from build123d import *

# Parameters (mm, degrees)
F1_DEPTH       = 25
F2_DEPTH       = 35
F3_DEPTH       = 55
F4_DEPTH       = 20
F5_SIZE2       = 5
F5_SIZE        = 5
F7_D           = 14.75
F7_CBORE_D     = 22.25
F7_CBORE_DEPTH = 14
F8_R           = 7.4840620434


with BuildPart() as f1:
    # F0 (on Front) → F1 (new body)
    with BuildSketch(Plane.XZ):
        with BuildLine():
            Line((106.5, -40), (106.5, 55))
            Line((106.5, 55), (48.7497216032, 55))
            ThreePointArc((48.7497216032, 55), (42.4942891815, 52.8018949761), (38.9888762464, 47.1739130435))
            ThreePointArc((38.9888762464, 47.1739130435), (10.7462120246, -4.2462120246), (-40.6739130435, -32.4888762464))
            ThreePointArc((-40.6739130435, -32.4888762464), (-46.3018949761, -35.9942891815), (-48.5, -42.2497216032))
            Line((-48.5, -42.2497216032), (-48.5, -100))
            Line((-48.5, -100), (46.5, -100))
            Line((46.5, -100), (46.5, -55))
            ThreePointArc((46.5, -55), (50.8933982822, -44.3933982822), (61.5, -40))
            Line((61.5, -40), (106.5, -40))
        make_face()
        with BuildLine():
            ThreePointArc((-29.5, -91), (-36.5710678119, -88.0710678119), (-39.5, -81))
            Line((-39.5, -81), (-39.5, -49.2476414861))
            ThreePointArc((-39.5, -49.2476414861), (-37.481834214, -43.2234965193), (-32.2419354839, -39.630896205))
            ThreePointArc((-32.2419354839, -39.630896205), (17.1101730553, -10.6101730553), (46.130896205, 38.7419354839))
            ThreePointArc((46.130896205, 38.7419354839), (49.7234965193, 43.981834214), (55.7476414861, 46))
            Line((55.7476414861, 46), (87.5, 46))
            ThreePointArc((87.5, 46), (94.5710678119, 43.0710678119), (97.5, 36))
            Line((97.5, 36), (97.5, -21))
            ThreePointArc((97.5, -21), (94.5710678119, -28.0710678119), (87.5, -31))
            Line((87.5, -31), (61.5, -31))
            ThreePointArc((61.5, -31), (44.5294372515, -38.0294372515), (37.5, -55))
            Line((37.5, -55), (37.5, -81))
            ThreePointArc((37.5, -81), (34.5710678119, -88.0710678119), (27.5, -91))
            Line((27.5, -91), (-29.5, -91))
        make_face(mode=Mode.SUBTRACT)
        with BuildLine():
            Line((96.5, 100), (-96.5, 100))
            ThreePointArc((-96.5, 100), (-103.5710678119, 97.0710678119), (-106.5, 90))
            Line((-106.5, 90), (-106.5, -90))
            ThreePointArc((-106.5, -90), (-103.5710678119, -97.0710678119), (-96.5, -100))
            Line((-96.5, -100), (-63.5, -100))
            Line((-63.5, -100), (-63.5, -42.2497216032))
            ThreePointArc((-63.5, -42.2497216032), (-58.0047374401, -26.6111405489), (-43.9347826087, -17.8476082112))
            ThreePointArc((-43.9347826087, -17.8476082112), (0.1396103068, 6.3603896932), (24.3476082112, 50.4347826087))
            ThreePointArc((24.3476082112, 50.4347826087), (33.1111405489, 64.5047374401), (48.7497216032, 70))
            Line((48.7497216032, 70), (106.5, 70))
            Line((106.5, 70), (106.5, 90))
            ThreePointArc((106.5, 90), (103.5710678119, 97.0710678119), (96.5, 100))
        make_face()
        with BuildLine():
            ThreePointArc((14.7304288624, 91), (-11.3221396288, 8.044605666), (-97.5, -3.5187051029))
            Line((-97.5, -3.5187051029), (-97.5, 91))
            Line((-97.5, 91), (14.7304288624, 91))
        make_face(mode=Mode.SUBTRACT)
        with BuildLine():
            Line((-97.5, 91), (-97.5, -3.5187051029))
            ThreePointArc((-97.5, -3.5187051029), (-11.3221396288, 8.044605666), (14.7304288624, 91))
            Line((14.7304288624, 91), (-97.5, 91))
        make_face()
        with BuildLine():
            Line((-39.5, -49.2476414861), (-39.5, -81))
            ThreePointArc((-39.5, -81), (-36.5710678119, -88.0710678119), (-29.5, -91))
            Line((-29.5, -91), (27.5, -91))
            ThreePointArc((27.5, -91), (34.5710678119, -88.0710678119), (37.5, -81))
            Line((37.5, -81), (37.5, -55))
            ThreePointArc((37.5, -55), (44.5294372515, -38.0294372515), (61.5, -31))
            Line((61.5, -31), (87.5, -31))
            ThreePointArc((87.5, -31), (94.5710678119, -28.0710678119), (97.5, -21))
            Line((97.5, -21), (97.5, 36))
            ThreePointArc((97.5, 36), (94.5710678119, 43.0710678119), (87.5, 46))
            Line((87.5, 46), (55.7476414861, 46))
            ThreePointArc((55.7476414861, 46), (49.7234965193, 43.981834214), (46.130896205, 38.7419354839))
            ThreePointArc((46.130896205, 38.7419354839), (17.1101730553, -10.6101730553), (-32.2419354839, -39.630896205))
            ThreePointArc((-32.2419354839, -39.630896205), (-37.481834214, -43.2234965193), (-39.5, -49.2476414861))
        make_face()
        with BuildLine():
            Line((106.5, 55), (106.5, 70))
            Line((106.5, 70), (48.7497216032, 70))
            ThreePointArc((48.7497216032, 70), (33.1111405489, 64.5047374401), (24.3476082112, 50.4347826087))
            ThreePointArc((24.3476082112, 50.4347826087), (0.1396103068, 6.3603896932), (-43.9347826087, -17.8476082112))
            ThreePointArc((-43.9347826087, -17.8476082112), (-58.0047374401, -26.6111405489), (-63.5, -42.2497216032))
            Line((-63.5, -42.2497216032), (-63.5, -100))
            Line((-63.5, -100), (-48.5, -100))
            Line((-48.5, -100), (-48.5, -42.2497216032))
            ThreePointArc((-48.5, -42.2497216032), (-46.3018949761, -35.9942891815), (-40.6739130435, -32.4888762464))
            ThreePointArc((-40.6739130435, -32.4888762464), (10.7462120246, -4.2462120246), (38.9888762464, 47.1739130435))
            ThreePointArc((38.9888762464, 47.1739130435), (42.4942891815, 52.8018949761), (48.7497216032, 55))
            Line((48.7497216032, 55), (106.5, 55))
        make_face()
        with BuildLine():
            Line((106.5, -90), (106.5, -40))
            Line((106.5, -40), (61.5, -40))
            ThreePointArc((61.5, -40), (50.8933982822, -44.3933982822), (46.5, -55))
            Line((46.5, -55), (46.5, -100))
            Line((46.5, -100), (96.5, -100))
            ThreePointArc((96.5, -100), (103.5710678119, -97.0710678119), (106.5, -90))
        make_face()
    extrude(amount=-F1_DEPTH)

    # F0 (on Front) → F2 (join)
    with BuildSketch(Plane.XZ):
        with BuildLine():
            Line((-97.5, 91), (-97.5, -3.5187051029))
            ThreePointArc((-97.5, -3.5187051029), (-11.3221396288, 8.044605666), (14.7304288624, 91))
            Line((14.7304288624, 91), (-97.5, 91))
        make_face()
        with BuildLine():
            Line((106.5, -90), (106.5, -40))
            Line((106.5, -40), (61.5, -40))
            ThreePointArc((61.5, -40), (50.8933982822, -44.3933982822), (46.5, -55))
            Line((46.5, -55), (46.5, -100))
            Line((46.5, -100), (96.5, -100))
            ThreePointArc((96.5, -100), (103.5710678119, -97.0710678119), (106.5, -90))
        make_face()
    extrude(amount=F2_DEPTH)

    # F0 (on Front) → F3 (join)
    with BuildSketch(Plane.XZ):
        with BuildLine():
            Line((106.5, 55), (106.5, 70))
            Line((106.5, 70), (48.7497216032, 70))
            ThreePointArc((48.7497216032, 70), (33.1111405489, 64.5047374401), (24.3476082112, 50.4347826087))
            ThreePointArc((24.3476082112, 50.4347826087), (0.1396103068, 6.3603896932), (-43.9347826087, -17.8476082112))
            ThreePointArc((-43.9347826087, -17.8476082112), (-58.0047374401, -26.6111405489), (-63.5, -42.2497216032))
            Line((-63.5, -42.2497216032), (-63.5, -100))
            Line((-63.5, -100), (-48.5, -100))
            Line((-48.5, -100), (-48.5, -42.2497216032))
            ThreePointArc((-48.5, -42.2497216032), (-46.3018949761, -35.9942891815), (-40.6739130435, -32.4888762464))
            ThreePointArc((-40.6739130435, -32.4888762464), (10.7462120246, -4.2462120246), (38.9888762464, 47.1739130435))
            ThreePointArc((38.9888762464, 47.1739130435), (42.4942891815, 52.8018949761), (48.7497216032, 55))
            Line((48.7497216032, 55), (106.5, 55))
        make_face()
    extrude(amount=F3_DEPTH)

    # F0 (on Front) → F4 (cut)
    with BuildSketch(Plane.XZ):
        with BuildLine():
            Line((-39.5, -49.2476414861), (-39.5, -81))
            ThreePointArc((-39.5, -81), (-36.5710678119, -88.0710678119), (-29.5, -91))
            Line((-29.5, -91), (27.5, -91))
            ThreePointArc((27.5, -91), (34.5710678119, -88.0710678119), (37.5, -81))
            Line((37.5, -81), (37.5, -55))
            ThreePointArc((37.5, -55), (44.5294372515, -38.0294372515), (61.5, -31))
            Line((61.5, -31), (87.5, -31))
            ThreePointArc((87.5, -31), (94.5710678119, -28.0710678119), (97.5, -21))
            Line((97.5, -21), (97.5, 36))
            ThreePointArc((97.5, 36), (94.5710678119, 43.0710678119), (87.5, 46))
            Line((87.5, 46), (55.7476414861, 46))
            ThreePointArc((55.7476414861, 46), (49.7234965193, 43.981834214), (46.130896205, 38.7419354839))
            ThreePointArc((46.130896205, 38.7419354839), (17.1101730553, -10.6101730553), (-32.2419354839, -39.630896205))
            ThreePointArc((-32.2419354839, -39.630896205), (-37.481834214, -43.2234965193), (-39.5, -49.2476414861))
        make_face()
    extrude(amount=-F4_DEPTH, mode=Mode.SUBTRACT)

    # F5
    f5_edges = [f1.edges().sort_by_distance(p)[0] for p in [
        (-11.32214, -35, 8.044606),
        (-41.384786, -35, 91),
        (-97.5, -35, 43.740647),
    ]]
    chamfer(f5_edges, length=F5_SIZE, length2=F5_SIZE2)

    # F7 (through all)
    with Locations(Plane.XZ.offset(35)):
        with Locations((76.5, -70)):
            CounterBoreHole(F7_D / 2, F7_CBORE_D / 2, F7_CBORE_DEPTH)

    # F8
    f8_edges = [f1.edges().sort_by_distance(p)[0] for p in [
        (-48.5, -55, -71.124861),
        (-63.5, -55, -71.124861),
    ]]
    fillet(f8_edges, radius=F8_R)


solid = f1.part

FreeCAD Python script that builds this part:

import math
import FreeCAD as App
import Part
import Sketcher

V = App.Vector


def edges_at(feature, points):
    """Names of the edges that pass closest to the given points."""
    edges = feature.Shape.Edges
    near = lambda p: min(range(len(edges)), key=lambda i: edges[i].distToShape(Part.Vertex(*p))[0])
    return sorted({f"Edge{near(p) + 1}" for p in points})

doc = App.newDocument("Part")
body = doc.addObject("PartDesign::Body", "Body")

# Sketch on XZ plane
sketch1 = body.newObject("Sketcher::SketchObject", "Sketch")
sketch1.AttachmentSupport = (doc.getObject("XZ_Plane"), [""])
sketch1.MapMode = "FlatFace"
sketch1.addGeometry(Part.ArcOfCircle(Part.Circle(V(96, 90, 0), V(0, 0, 1), 10), math.radians(0), math.radians(90)), False)
sketch1.addGeometry(Part.LineSegment(V(96, 100, 0), V(-96, 100, 0)), False)
sketch1.addGeometry(Part.ArcOfCircle(Part.Circle(V(-96, 90, 0), V(0, 0, 1), 10), math.radians(90), math.radians(180)), False)
sketch1.addGeometry(Part.LineSegment(V(-106, 90, 0), V(-106, -90, 0)), False)
sketch1.addGeometry(Part.ArcOfCircle(Part.Circle(V(-96, -90, 0), V(0, 0, 1), 10), math.radians(180), math.radians(270)), False)
sketch1.addGeometry(Part.LineSegment(V(-96, -100, 0), V(96, -100, 0)), False)
sketch1.addGeometry(Part.ArcOfCircle(Part.Circle(V(96, -90, 0), V(0, 0, 1), 10), math.radians(-90), math.radians(0)), False)
sketch1.addGeometry(Part.LineSegment(V(106, -90, 0), V(106, 90, 0)), False)
sketch1.addConstraint(Sketcher.Constraint("Tangent", 0, 2, 1, 1))
sketch1.addConstraint(Sketcher.Constraint("Tangent", 1, 2, 2, 1))
sketch1.addConstraint(Sketcher.Constraint("Tangent", 2, 2, 3, 1))
sketch1.addConstraint(Sketcher.Constraint("Tangent", 3, 2, 4, 1))
sketch1.addConstraint(Sketcher.Constraint("Tangent", 4, 2, 5, 1))
sketch1.addConstraint(Sketcher.Constraint("Tangent", 5, 2, 6, 1))
sketch1.addConstraint(Sketcher.Constraint("Tangent", 6, 2, 7, 1))
sketch1.addConstraint(Sketcher.Constraint("Tangent", 7, 2, 0, 1))
sketch1.addConstraint(Sketcher.Constraint("Horizontal", 1))
sketch1.addConstraint(Sketcher.Constraint("Vertical", 3))
sketch1.addConstraint(Sketcher.Constraint("Horizontal", 5))
sketch1.addConstraint(Sketcher.Constraint("Vertical", 7))
sketch1.addConstraint(Sketcher.Constraint("Equal", 0, 2))
sketch1.addConstraint(Sketcher.Constraint("Equal", 2, 4))
sketch1.addConstraint(Sketcher.Constraint("Equal", 4, 6))
sketch1.addConstraint(Sketcher.Constraint("Symmetric", 0, 3, 4, 3, -1, 1))
sketch1.addConstraint(Sketcher.Constraint("Radius", 0, 10.0))
sketch1.addConstraint(Sketcher.Constraint("DistanceX", 1, 2, 1, 1, 193.0))
sketch1.addConstraint(Sketcher.Constraint("DistanceY", 3, 2, 3, 1, 180.0))
pad1 = body.newObject("PartDesign::Pad", "Pad")
pad1.Profile = sketch1
pad1.Length = 25
pad1.Reversed = True

# Sketch on XZ plane
sketch2 = body.newObject("Sketcher::SketchObject", "Sketch001")
sketch2.AttachmentSupport = (doc.getObject("XZ_Plane"), [""])
sketch2.MapMode = "FlatFace"
sketch2.addGeometry(Part.LineSegment(V(-98, 91, 0), V(-98, -4, 0)), False)
sketch2.addGeometry(Part.ArcOfCircle(Part.Circle(V(-64, 70, 0), V(0, 0, 1), 81), math.radians(-115), math.radians(15)), False)
sketch2.addGeometry(Part.LineSegment(V(15, 91, 0), V(-98, 91, 0)), False)
sketch2.addGeometry(Part.LineSegment(V(106, -90, 0), V(106, -40, 0)), False)
sketch2.addGeometry(Part.LineSegment(V(106, -40, 0), V(62, -40, 0)), False)
sketch2.addGeometry(Part.ArcOfCircle(Part.Circle(V(62, -55, 0), V(0, 0, 1), 15), math.radians(90), math.radians(180)), False)
sketch2.addGeometry(Part.LineSegment(V(46, -55, 0), V(46, -100, 0)), False)
sketch2.addGeometry(Part.LineSegment(V(46, -100, 0), V(96, -100, 0)), False)
sketch2.addGeometry(Part.ArcOfCircle(Part.Circle(V(96, -90, 0), V(0, 0, 1), 10), math.radians(-90), math.radians(0)), False)
sketch2.addConstraint(Sketcher.Constraint("Coincident", 0, 2, 1, 1))
sketch2.addConstraint(Sketcher.Constraint("Coincident", 1, 2, 2, 1))
sketch2.addConstraint(Sketcher.Constraint("Coincident", 2, 2, 0, 1))
sketch2.addConstraint(Sketcher.Constraint("Coincident", 3, 2, 4, 1))
sketch2.addConstraint(Sketcher.Constraint("Tangent", 4, 2, 5, 1))
sketch2.addConstraint(Sketcher.Constraint("Tangent", 5, 2, 6, 1))
sketch2.addConstraint(Sketcher.Constraint("Coincident", 6, 2, 7, 1))
sketch2.addConstraint(Sketcher.Constraint("Tangent", 7, 2, 8, 1))
sketch2.addConstraint(Sketcher.Constraint("Tangent", 8, 2, 3, 1))
sketch2.addConstraint(Sketcher.Constraint("Vertical", 0))
sketch2.addConstraint(Sketcher.Constraint("Horizontal", 2))
sketch2.addConstraint(Sketcher.Constraint("Vertical", 3))
sketch2.addConstraint(Sketcher.Constraint("Horizontal", 4))
sketch2.addConstraint(Sketcher.Constraint("Vertical", 6))
sketch2.addConstraint(Sketcher.Constraint("Horizontal", 7))
sketch2.addConstraint(Sketcher.Constraint("Equal", 7, 3))
sketch2.addConstraint(Sketcher.Constraint("Radius", 1, 81.0))
sketch2.addConstraint(Sketcher.Constraint("Radius", 5, 15.0))
sketch2.addConstraint(Sketcher.Constraint("Radius", 8, 10.0))
sketch2.addConstraint(Sketcher.Constraint("DistanceX", 4, 2, 4, 1, 45.0))
sketch2.addConstraint(Sketcher.Constraint("DistanceY", -1, 1, 1, 3, 70.0))
sketch2.addConstraint(Sketcher.Constraint("DistanceY", 5, 3, -1, 1, 55.0))
sketch2.addConstraint(Sketcher.Constraint("DistanceY", -1, 1, 1, 2, 91.0))
sketch2.addConstraint(Sketcher.Constraint("DistanceX", 1, 3, 5, 3, 125.0))
sketch2.addConstraint(Sketcher.Constraint("DistanceX", 0, 2, 1, 3, 34.0))
sketch2.addConstraint(Sketcher.Constraint("DistanceX", 1, 3, -1, 1, 63.5))
pad2 = body.newObject("PartDesign::Pad", "Pad001")
pad2.Profile = sketch2
pad2.Length = 35

# Sketch on XZ plane
sketch3 = body.newObject("Sketcher::SketchObject", "Sketch002")
sketch3.AttachmentSupport = (doc.getObject("XZ_Plane"), [""])
sketch3.MapMode = "FlatFace"
sketch3.addGeometry(Part.LineSegment(V(106, 55, 0), V(106, 70, 0)), False)
sketch3.addGeometry(Part.LineSegment(V(106, 70, 0), V(49, 70, 0)), False)
sketch3.addGeometry(Part.ArcOfCircle(Part.Circle(V(49, 45, 0), V(0, 0, 1), 25), math.radians(90), math.radians(167)), False)
sketch3.addGeometry(Part.ArcOfCircle(Part.Circle(V(-64, 70, 0), V(0, 0, 1), 90), math.radians(-77), math.radians(-13)), False)
sketch3.addGeometry(Part.ArcOfCircle(Part.Circle(V(-38, -42, 0), V(0, 0, 1), 25), math.radians(103), math.radians(180)), False)
sketch3.addGeometry(Part.LineSegment(V(-64, -42, 0), V(-64, -100, 0)), False)
sketch3.addGeometry(Part.LineSegment(V(-64, -100, 0), V(-48, -100, 0)), False)
sketch3.addGeometry(Part.LineSegment(V(-48, -100, 0), V(-48, -42, 0)), False)
sketch3.addGeometry(Part.ArcOfCircle(Part.Circle(V(-38, -42, 0), V(0, 0, 1), 10), math.radians(103), math.radians(180)), False)
sketch3.addGeometry(Part.ArcOfCircle(Part.Circle(V(-64, 70, 0), V(0, 0, 1), 105), math.radians(-77), math.radians(-13)), False)
sketch3.addGeometry(Part.ArcOfCircle(Part.Circle(V(49, 45, 0), V(0, 0, 1), 10), math.radians(90), math.radians(167)), False)
sketch3.addGeometry(Part.LineSegment(V(49, 55, 0), V(106, 55, 0)), False)
sketch3.addConstraint(Sketcher.Constraint("Coincident", 0, 2, 1, 1))
sketch3.addConstraint(Sketcher.Constraint("Tangent", 1, 2, 2, 1))
sketch3.addConstraint(Sketcher.Constraint("Tangent", 2, 2, 3, 2))
sketch3.addConstraint(Sketcher.Constraint("Tangent", 3, 1, 4, 1))
sketch3.addConstraint(Sketcher.Constraint("Tangent", 4, 2, 5, 1))
sketch3.addConstraint(Sketcher.Constraint("Coincident", 5, 2, 6, 1))
sketch3.addConstraint(Sketcher.Constraint("Coincident", 6, 2, 7, 1))
sketch3.addConstraint(Sketcher.Constraint("Tangent", 7, 2, 8, 2))
sketch3.addConstraint(Sketcher.Constraint("Tangent", 8, 1, 9, 1))
sketch3.addConstraint(Sketcher.Constraint("Tangent", 9, 2, 10, 2))
sketch3.addConstraint(Sketcher.Constraint("Tangent", 10, 1, 11, 1))
sketch3.addConstraint(Sketcher.Constraint("Coincident", 11, 2, 0, 1))
sketch3.addConstraint(Sketcher.Constraint("Vertical", 0))
sketch3.addConstraint(Sketcher.Constraint("Horizontal", 1))
sketch3.addConstraint(Sketcher.Constraint("Vertical", 5))
sketch3.addConstraint(Sketcher.Constraint("Horizontal", 6))
sketch3.addConstraint(Sketcher.Constraint("Vertical", 7))
sketch3.addConstraint(Sketcher.Constraint("Horizontal", 11))
sketch3.addConstraint(Sketcher.Constraint("Coincident", 8, 3, 4, 3))
sketch3.addConstraint(Sketcher.Constraint("Coincident", 9, 3, 3, 3))
sketch3.addConstraint(Sketcher.Constraint("Coincident", 10, 3, 2, 3))
sketch3.addConstraint(Sketcher.Constraint("Equal", 2, 4))
sketch3.addConstraint(Sketcher.Constraint("Horizontal", 9, 3, 0, 2))
sketch3.addConstraint(Sketcher.Constraint("Vertical", 9, 3, 4, 2))
sketch3.addConstraint(Sketcher.Constraint("Equal", 11, 5))
sketch3.addConstraint(Sketcher.Constraint("Radius", 2, 25.0))
sketch3.addConstraint(Sketcher.Constraint("Radius", 3, 90.0))
sketch3.addConstraint(Sketcher.Constraint("Radius", 8, 10.0))
sketch3.addConstraint(Sketcher.Constraint("DistanceY", -1, 1, 2, 3, 45.0))
sketch3.addConstraint(Sketcher.Constraint("DistanceY", 5, 2, -1, 1, 100.0))
sketch3.addConstraint(Sketcher.Constraint("DistanceX", 3, 3, -1, 1, 63.5))
pad3 = body.newObject("PartDesign::Pad", "Pad002")
pad3.Profile = sketch3
pad3.Length = 55

# Sketch on XZ plane
sketch4 = body.newObject("Sketcher::SketchObject", "Sketch003")
sketch4.AttachmentSupport = (doc.getObject("XZ_Plane"), [""])
sketch4.MapMode = "FlatFace"
sketch4.addGeometry(Part.LineSegment(V(-40, -49, 0), V(-40, -81, 0)), False)
sketch4.addGeometry(Part.ArcOfCircle(Part.Circle(V(-30, -81, 0), V(0, 0, 1), 10), math.radians(180), math.radians(270)), False)
sketch4.addGeometry(Part.LineSegment(V(-30, -91, 0), V(28, -91, 0)), False)
sketch4.addGeometry(Part.ArcOfCircle(Part.Circle(V(28, -81, 0), V(0, 0, 1), 10), math.radians(-90), math.radians(0)), False)
sketch4.addGeometry(Part.LineSegment(V(38, -81, 0), V(38, -55, 0)), False)
sketch4.addGeometry(Part.ArcOfCircle(Part.Circle(V(62, -55, 0), V(0, 0, 1), 24), math.radians(90), math.radians(180)), False)
sketch4.addGeometry(Part.LineSegment(V(62, -31, 0), V(88, -31, 0)), False)
sketch4.addGeometry(Part.ArcOfCircle(Part.Circle(V(88, -21, 0), V(0, 0, 1), 10), math.radians(-90), math.radians(0)), False)
sketch4.addGeometry(Part.LineSegment(V(98, -21, 0), V(98, 36, 0)), False)
sketch4.addGeometry(Part.ArcOfCircle(Part.Circle(V(88, 36, 0), V(0, 0, 1), 10), math.radians(0), math.radians(90)), False)
sketch4.addGeometry(Part.LineSegment(V(88, 46, 0), V(56, 46, 0)), False)
sketch4.addGeometry(Part.ArcOfCircle(Part.Circle(V(56, 36, 0), V(0, 0, 1), 10), math.radians(90), math.radians(164)), False)
sketch4.addGeometry(Part.ArcOfCircle(Part.Circle(V(-64, 70, 0), V(0, 0, 1), 114), math.radians(-74), math.radians(-16)), False)
sketch4.addGeometry(Part.ArcOfCircle(Part.Circle(V(-30, -49, 0), V(0, 0, 1), 10), math.radians(106), math.radians(180)), False)
sketch4.addConstraint(Sketcher.Constraint("Tangent", 0, 2, 1, 1))
sketch4.addConstraint(Sketcher.Constraint("Tangent", 1, 2, 2, 1))
sketch4.addConstraint(Sketcher.Constraint("Tangent", 2, 2, 3, 1))
sketch4.addConstraint(Sketcher.Constraint("Tangent", 3, 2, 4, 1))
sketch4.addConstraint(Sketcher.Constraint("Tangent", 4, 2, 5, 2))
sketch4.addConstraint(Sketcher.Constraint("Tangent", 5, 1, 6, 1))
sketch4.addConstraint(Sketcher.Constraint("Tangent", 6, 2, 7, 1))
sketch4.addConstraint(Sketcher.Constraint("Tangent", 7, 2, 8, 1))
sketch4.addConstraint(Sketcher.Constraint("Tangent", 8, 2, 9, 1))
sketch4.addConstraint(Sketcher.Constraint("Tangent", 9, 2, 10, 1))
sketch4.addConstraint(Sketcher.Constraint("Tangent", 10, 2, 11, 1))
sketch4.addConstraint(Sketcher.Constraint("Tangent", 11, 2, 12, 2))
sketch4.addConstraint(Sketcher.Constraint("Tangent", 12, 1, 13, 1))
sketch4.addConstraint(Sketcher.Constraint("Tangent", 13, 2, 0, 1))
sketch4.addConstraint(Sketcher.Constraint("Vertical", 0))
sketch4.addConstraint(Sketcher.Constraint("Horizontal", 2))
sketch4.addConstraint(Sketcher.Constraint("Vertical", 4))
sketch4.addConstraint(Sketcher.Constraint("Horizontal", 6))
sketch4.addConstraint(Sketcher.Constraint("Vertical", 8))
sketch4.addConstraint(Sketcher.Constraint("Horizontal", 10))
sketch4.addConstraint(Sketcher.Constraint("Equal", 1, 3))
sketch4.addConstraint(Sketcher.Constraint("Equal", 3, 7))
sketch4.addConstraint(Sketcher.Constraint("Equal", 7, 9))
sketch4.addConstraint(Sketcher.Constraint("Equal", 9, 11))
sketch4.addConstraint(Sketcher.Constraint("Equal", 11, 13))
sketch4.addConstraint(Sketcher.Constraint("Equal", 10, 0))
sketch4.addConstraint(Sketcher.Constraint("Equal", 6, 4))
sketch4.addConstraint(Sketcher.Constraint("Equal", 2, 8))
sketch4.addConstraint(Sketcher.Constraint("Radius", 1, 10.0))
sketch4.addConstraint(Sketcher.Constraint("Radius", 5, 24.0))
sketch4.addConstraint(Sketcher.Constraint("Radius", 12, 114.0))
sketch4.addConstraint(Sketcher.Constraint("DistanceX", 2, 1, 2, 2, 57.0))
sketch4.addConstraint(Sketcher.Constraint("DistanceX", 6, 1, 6, 2, 26.0))
sketch4.addConstraint(Sketcher.Constraint("DistanceY", 1, 3, -1, 1, 81.0))
sketch4.addConstraint(Sketcher.Constraint("DistanceY", -1, 1, 12, 3, 70.0))
sketch4.addConstraint(Sketcher.Constraint("DistanceX", 1, 3, -1, 1, 29.5))
pocket1 = body.newObject("PartDesign::Pocket", "Pocket")
pocket1.Profile = sketch4
pocket1.Length = 20
doc.recompute()

chamfer = body.newObject("PartDesign::Chamfer", "Chamfer")
chamfer.Base = (pocket1, edges_at(pocket1, [(-11.322, -35, 8.045), (-41.385, -35, 91), (-97.5, -35, 43.741)]))
chamfer.ChamferType = "Two distances"
chamfer.Size = 5
chamfer.Size2 = 5

# Sketch on XZ plane
sketch5 = body.newObject("Sketcher::SketchObject", "Sketch004")
sketch5.AttachmentSupport = (doc.getObject("XZ_Plane"), [""])
sketch5.MapMode = "FlatFace"
sketch5.AttachmentOffset = App.Placement(V(0, 0, 35), App.Rotation())
sketch5.addGeometry(Part.Circle(V(76, -70, 0), V(0, 0, 1), 7), False)
sketch5.addConstraint(Sketcher.Constraint("Diameter", 0, 14.75))
sketch5.addConstraint(Sketcher.Constraint("DistanceY", 0, 3, -1, 1, 70.0))
sketch5.addConstraint(Sketcher.Constraint("DistanceX", -1, 1, 0, 3, 76.5))
doc.recompute()
hole = body.newObject("PartDesign::Hole", "Hole")
hole.Profile = sketch5
hole.ThreadType = "None"
hole.Diameter = 14.75
hole.DepthType = "ThroughAll"
hole.HoleCutType = "Counterbore"
hole.HoleCutDiameter = 22.25
hole.HoleCutDepth = 14
doc.recompute()

fillet = body.newObject("PartDesign::Fillet", "Fillet")
fillet.Base = (hole, edges_at(hole, [(-48.5, -55, -71.125), (-63.5, -55, -71.125)]))
fillet.Radius = 7.484062

doc.recompute()
